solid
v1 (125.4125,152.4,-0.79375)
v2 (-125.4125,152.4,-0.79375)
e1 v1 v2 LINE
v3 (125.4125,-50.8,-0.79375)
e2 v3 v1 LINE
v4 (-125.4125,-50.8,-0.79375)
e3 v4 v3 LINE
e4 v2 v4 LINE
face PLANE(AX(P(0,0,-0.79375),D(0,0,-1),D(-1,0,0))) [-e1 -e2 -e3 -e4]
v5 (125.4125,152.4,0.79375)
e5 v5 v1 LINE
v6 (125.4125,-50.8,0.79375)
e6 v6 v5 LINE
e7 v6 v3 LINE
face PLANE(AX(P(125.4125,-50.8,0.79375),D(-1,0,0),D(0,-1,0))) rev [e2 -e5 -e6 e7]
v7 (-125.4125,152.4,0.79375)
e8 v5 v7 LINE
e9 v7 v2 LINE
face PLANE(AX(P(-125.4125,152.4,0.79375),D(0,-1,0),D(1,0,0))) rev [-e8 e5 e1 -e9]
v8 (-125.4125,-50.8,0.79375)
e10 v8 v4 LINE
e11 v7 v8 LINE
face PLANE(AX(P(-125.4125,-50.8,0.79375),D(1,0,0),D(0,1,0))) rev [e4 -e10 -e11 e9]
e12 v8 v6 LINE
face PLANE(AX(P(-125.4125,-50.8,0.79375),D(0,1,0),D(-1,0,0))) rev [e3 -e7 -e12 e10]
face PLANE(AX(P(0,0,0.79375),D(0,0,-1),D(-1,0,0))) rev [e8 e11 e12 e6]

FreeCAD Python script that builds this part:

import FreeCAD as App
import Part
import Sketcher
from FreeCAD import Vector
Q = App.Units.Quantity

doc = App.newDocument("Part")
body = doc.addObject("PartDesign::Body", "Body")

sketch1 = body.newObject("Sketcher::SketchObject", "Sketch")
sketch1.AttachmentSupport = (doc.getObject("XY_Plane"), [""])
sketch1.MapMode = "FlatFace"
sketch1.addGeometry([
    Part.LineSegment(Vector(-125.4125, 152.4, 0), Vector(-125.4125, -50.8, 0)),
    Part.LineSegment(Vector(-125.4125, -50.8, 0), Vector(125.4125, -50.8, 0)),
    Part.LineSegment(Vector(125.4125, -50.8, 0), Vector(125.4125, 152.4, 0)),
    Part.LineSegment(Vector(125.4125, 152.4, 0), Vector(-125.4125, 152.4, 0)),
], False)
sketch1.addConstraint([
    Sketcher.Constraint("Coincident", 0, 2, 1, 1),
    Sketcher.Constraint("Coincident", 1, 2, 2, 1),
    Sketcher.Constraint("Coincident", 2, 2, 3, 1),
    Sketcher.Constraint("Coincident", 3, 2, 0, 1),
    Sketcher.Constraint("Vertical", 0),
    Sketcher.Constraint("Horizontal", 1),
    Sketcher.Constraint("Vertical", 2),
    Sketcher.Constraint("Horizontal", 3),
    Sketcher.Constraint("DistanceY", 0, 2, 0, 1, Q("8 in")),
    Sketcher.Constraint("DistanceY", 0, 2, -1, 1, Q("2 in")),
    Sketcher.Constraint("DistanceX", 1, 1, 1, 2, Q("9.875 in")),
    Sketcher.Constraint("DistanceX", 0, 2, -1, 1, Q("4.9375 in")),
])
pad1 = body.newObject("PartDesign::Pad", "Pad")
pad1.Profile = sketch1
pad1.Length = Q("0.0625 in")
pad1.Midplane = True

doc.recompute()
